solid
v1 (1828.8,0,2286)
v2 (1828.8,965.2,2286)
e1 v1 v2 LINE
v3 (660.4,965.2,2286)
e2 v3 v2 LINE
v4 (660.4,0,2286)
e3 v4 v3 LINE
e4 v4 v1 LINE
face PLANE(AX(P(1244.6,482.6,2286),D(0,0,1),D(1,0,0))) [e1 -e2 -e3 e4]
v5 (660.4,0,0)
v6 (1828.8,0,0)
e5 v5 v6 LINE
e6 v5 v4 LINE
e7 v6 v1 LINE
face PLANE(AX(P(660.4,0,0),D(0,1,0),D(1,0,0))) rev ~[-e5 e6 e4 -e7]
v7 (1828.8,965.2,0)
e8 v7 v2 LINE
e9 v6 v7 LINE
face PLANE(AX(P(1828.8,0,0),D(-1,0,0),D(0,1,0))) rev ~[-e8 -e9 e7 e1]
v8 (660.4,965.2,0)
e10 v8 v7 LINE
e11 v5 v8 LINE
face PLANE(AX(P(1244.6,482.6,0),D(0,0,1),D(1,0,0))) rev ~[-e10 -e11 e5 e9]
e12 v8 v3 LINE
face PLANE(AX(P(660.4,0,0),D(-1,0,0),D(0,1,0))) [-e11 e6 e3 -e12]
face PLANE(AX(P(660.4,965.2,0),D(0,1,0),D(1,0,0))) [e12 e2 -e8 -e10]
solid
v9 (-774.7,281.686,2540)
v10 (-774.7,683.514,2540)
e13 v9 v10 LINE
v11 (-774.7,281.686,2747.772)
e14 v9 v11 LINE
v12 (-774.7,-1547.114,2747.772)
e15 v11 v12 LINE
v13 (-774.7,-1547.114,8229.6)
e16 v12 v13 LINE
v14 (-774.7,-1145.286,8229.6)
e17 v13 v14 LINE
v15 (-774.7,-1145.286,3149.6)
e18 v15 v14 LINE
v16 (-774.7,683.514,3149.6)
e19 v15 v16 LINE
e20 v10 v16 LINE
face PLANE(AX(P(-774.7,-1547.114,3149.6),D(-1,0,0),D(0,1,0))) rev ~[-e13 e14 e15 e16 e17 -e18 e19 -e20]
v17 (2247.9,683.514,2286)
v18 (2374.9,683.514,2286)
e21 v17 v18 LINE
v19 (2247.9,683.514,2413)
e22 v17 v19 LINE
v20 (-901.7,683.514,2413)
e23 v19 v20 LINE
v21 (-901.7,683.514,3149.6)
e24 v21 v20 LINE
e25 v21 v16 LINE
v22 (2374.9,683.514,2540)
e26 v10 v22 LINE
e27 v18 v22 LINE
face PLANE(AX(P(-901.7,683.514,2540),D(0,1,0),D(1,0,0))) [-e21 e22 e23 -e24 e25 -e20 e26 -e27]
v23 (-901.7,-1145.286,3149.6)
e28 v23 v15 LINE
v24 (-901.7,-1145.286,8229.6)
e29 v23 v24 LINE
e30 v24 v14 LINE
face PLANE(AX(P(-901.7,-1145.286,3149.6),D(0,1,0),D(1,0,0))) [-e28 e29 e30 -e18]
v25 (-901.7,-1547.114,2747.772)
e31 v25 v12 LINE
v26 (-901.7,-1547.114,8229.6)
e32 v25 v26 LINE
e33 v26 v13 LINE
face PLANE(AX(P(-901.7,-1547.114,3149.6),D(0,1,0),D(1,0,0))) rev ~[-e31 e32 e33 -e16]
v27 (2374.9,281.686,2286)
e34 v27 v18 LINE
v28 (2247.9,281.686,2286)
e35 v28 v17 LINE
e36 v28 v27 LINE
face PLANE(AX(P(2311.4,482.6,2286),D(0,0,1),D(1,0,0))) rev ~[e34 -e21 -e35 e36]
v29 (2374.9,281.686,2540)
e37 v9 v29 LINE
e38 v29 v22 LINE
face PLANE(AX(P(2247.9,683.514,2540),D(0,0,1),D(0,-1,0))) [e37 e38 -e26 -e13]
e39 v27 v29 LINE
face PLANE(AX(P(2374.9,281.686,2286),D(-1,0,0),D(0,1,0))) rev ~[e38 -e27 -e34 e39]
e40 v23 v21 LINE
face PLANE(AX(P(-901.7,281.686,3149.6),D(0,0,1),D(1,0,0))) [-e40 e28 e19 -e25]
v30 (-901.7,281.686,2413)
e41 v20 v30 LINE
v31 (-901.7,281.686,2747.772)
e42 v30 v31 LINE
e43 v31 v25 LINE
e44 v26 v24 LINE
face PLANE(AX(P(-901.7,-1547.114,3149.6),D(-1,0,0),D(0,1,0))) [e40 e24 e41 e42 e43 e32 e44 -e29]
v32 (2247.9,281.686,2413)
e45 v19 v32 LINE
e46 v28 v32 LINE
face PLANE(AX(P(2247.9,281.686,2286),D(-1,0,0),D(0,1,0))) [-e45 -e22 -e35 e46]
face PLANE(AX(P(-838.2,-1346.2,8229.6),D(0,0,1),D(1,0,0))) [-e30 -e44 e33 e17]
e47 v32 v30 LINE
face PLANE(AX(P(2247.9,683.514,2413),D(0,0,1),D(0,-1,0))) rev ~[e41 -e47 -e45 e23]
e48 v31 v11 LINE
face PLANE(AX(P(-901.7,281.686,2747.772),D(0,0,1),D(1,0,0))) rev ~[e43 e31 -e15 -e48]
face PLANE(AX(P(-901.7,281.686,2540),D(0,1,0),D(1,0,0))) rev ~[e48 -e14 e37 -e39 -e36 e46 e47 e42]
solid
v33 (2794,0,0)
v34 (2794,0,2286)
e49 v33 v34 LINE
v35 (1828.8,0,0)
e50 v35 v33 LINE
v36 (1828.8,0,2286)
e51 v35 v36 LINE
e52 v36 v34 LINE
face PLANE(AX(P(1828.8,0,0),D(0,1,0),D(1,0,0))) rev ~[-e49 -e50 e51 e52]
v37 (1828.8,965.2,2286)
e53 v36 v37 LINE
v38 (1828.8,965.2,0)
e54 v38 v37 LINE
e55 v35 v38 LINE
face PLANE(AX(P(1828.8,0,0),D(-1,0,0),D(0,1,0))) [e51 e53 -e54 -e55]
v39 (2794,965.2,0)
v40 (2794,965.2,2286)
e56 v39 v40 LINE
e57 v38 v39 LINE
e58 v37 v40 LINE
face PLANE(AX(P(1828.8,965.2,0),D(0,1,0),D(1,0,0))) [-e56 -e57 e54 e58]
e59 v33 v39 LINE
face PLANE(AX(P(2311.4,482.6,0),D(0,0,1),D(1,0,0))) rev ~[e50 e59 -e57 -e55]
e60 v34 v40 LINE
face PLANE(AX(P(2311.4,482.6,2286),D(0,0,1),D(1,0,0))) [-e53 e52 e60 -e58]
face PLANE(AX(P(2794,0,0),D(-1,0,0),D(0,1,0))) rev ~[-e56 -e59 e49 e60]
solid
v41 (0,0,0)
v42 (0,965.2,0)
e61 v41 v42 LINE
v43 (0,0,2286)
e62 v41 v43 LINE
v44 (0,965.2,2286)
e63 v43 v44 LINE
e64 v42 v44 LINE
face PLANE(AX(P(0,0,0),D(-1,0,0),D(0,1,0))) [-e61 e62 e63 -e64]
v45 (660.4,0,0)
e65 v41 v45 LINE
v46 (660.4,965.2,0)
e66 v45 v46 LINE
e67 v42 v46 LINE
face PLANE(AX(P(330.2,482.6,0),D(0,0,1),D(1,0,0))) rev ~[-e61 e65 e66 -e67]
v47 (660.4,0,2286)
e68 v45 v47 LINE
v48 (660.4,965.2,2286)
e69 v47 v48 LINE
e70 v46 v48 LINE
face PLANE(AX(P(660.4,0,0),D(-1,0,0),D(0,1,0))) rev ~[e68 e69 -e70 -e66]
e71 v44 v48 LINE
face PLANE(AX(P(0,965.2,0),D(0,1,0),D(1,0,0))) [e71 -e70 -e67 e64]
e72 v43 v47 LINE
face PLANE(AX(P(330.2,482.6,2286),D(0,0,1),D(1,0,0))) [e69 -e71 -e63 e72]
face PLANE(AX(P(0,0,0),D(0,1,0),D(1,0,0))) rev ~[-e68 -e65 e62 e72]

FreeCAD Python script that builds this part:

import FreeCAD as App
import Part
import Sketcher

V = App.Vector
Q = App.Units.Quantity

doc = App.newDocument("Part")
body = doc.addObject("PartDesign::Body", "Body")

# Sketch on XY plane
sketch1 = body.newObject("Sketcher::SketchObject", "Sketch")
sketch1.AttachmentSupport = (doc.getObject("XY_Plane"), [""])
sketch1.MapMode = "FlatFace"
sketch1.addGeometry([
    Part.LineSegment(V(0, 965, 0), V(0, 0, 0)),
    Part.LineSegment(V(0, 0, 0), V(660, 0, 0)),
    Part.LineSegment(V(660, 0, 0), V(660, 965, 0)),
    Part.LineSegment(V(660, 965, 0), V(0, 965, 0)),
], False)
sketch1.addConstraint([
    Sketcher.Constraint("Coincident", 0, 2, 1, 1),
    Sketcher.Constraint("Coincident", 1, 2, 2, 1),
    Sketcher.Constraint("Coincident", 2, 2, 3, 1),
    Sketcher.Constraint("Coincident", 3, 2, 0, 1),
    Sketcher.Constraint("Vertical", 0),
    Sketcher.Constraint("Horizontal", 1),
    Sketcher.Constraint("Vertical", 2),
    Sketcher.Constraint("Horizontal", 3),
    Sketcher.Constraint("Coincident", 0, 2, -1, 1),
    Sketcher.Constraint("DistanceX", 1, 1, 1, 2, Q("26 in")),
    Sketcher.Constraint("DistanceY", 0, 2, 0, 1, Q("38 in")),
])
pad1 = body.newObject("PartDesign::Pad", "Pad")
pad1.Profile = sketch1
pad1.Length = Q("90 in")
body2 = doc.addObject("PartDesign::Body", "Body001")

# Sketch on XY plane
sketch2 = body2.newObject("Sketcher::SketchObject", "Sketch001")
sketch2.AttachmentSupport = (doc.getObject("XY_Plane001"), [""])
sketch2.MapMode = "FlatFace"
sketch2.addGeometry([
    Part.LineSegment(V(660, 965, 0), V(660, 0, 0)),
    Part.LineSegment(V(660, 0, 0), V(1829, 0, 0)),
    Part.LineSegment(V(1829, 0, 0), V(1829, 965, 0)),
    Part.LineSegment(V(1829, 965, 0), V(660, 965, 0)),
], False)
sketch2.addConstraint([
    Sketcher.Constraint("Coincident", 0, 2, 1, 1),
    Sketcher.Constraint("Coincident", 1, 2, 2, 1),
    Sketcher.Constraint("Coincident", 2, 2, 3, 1),
    Sketcher.Constraint("Coincident", 3, 2, 0, 1),
    Sketcher.Constraint("Vertical", 0),
    Sketcher.Constraint("Horizontal", 1),
    Sketcher.Constraint("Vertical", 2),
    Sketcher.Constraint("Horizontal", 3),
    Sketcher.Constraint("PointOnObject", 0, 2, -1),
    Sketcher.Constraint("DistanceX", 1, 1, 1, 2, Q("46 in")),
    Sketcher.Constraint("DistanceY", 0, 2, 0, 1, Q("38 in")),
    Sketcher.Constraint("DistanceX", -1, 1, 0, 2, Q("26 in")),
])
pad2 = body2.newObject("PartDesign::Pad", "Pad001")
pad2.Profile = sketch2
pad2.Length = Q("90 in")
body3 = doc.addObject("PartDesign::Body", "Body002")

# Sketch on XY plane
sketch3 = body3.newObject("Sketcher::SketchObject", "Sketch002")
sketch3.AttachmentSupport = (doc.getObject("XY_Plane002"), [""])
sketch3.MapMode = "FlatFace"
sketch3.addGeometry([
    Part.LineSegment(V(1829, 965, 0), V(1829, 0, 0)),
    Part.LineSegment(V(1829, 0, 0), V(2794, 0, 0)),
    Part.LineSegment(V(2794, 0, 0), V(2794, 965, 0)),
    Part.LineSegment(V(2794, 965, 0), V(1829, 965, 0)),
], False)
sketch3.addConstraint([
    Sketcher.Constraint("Coincident", 0, 2, 1, 1),
    Sketcher.Constraint("Coincident", 1, 2, 2, 1),
    Sketcher.Constraint("Coincident", 2, 2, 3, 1),
    Sketcher.Constraint("Coincident", 3, 2, 0, 1),
    Sketcher.Constraint("Vertical", 0),
    Sketcher.Constraint("Horizontal", 1),
    Sketcher.Constraint("Vertical", 2),
    Sketcher.Constraint("Horizontal", 3),
    Sketcher.Constraint("PointOnObject", 0, 2, -1),
    Sketcher.Constraint("Equal", 3, 0),
    Sketcher.Constraint("DistanceX", 1, 1, 1, 2, Q("38 in")),
    Sketcher.Constraint("DistanceX", -1, 1, 0, 2, Q("72 in")),
])
pad3 = body3.newObject("PartDesign::Pad", "Pad002")
pad3.Profile = sketch3
pad3.Length = Q("90 in")
body4 = doc.addObject("PartDesign::Body", "Body003")

# Sketch on XY plane
sketch4 = body4.newObject("Sketcher::SketchObject", "Sketch003")
sketch4.AttachmentSupport = (doc.getObject("XY_Plane003"), [""])
sketch4.MapMode = "FlatFace"
sketch4.AttachmentOffset = App.Placement(V(0, 0, 90 * 25.4), App.Rotation())
sketch4.addGeometry([
    Part.LineSegment(V(2248, 684, 0), V(2248, 282, 0)),
    Part.LineSegment(V(2248, 282, 0), V(2375, 282, 0)),
    Part.LineSegment(V(2375, 282, 0), V(2375, 684, 0)),
    Part.LineSegment(V(2375, 684, 0), V(2248, 684, 0)),
], False)
sketch4.addConstraint([
    Sketcher.Constraint("Coincident", 0, 2, 1, 1),
    Sketcher.Constraint("Coincident", 1, 2, 2, 1),
    Sketcher.Constraint("Coincident", 2, 2, 3, 1),
    Sketcher.Constraint("Coincident", 3, 2, 0, 1),
    Sketcher.Constraint("Vertical", 0),
    Sketcher.Constraint("Horizontal", 1),
    Sketcher.Constraint("Vertical", 2),
    Sketcher.Constraint("Horizontal", 3),
    Sketcher.Constraint("DistanceX", 1, 1, 1, 2, Q("5 in")),
    Sketcher.Constraint("DistanceY", 0, 2, 0, 1, Q("15.82 in")),
    Sketcher.Constraint("DistanceX", -1, 1, 0, 2, Q("88.5 in")),
    Sketcher.Constraint("DistanceY", -1, 1, 0, 2, Q("11.09 in")),
])
pad4 = body4.newObject("PartDesign::Pad", "Pad003")
pad4.Profile = sketch4
pad4.Length = Q("10 in")

# Sketch on YZ plane
sketch5 = body4.newObject("Sketcher::SketchObject", "Sketch004")
sketch5.AttachmentSupport = (doc.getObject("YZ_Plane003"), [""])
sketch5.MapMode = "FlatFace"
sketch5.AttachmentOffset = App.Placement(V(0, 0, 88.5 * 25.4), App.Rotation())
sketch5.addGeometry([
    Part.LineSegment(V(684, 2540, 0), V(684, 2413, 0)),
    Part.LineSegment(V(684, 2413, 0), V(282, 2413, 0)),
    Part.LineSegment(V(282, 2413, 0), V(282, 2540, 0)),
    Part.LineSegment(V(282, 2540, 0), V(684, 2540, 0)),
], False)
sketch5.addConstraint([
    Sketcher.Constraint("Coincident", 0, 2, 1, 1),
    Sketcher.Constraint("Coincident", 1, 2, 2, 1),
    Sketcher.Constraint("Coincident", 2, 2, 3, 1),
    Sketcher.Constraint("Coincident", 3, 2, 0, 1),
    Sketcher.Constraint("Vertical", 0),
    Sketcher.Constraint("Horizontal", 1),
    Sketcher.Constraint("Vertical", 2),
    Sketcher.Constraint("Horizontal", 3),
    Sketcher.Constraint("DistanceY", 0, 2, 0, 1, Q("5 in")),
    Sketcher.Constraint("DistanceY", -1, 1, 0, 2, Q("95 in")),
    Sketcher.Constraint("DistanceX", 1, 2, 1, 1, Q("15.82 in")),
    Sketcher.Constraint("DistanceX", -1, 1, 0, 2, Q("26.91 in")),
])
pad5 = body4.newObject("PartDesign::Pad", "Pad004")
pad5.Profile = sketch5
pad5.Length = Q("124 in")
pad5.Reversed = True

# Sketch on XY plane
sketch6 = body4.newObject("Sketcher::SketchObject", "Sketch005")
sketch6.AttachmentSupport = (doc.getObject("XY_Plane003"), [""])
sketch6.MapMode = "FlatFace"
sketch6.AttachmentOffset = App.Placement(V(0, 0, 100 * 25.4), App.Rotation())
sketch6.addGeometry([
    Part.LineSegment(V(-902, 684, 0), V(-902, 282, 0)),
    Part.LineSegment(V(-902, 282, 0), V(-775, 282, 0)),
    Part.LineSegment(V(-775, 282, 0), V(-775, 684, 0)),
    Part.LineSegment(V(-775, 684, 0), V(-902, 684, 0)),
], False)
sketch6.addConstraint([
    Sketcher.Constraint("Coincident", 0, 2, 1, 1),
    Sketcher.Constraint("Coincident", 1, 2, 2, 1),
    Sketcher.Constraint("Coincident", 2, 2, 3, 1),
    Sketcher.Constraint("Coincident", 3, 2, 0, 1),
    Sketcher.Constraint("Vertical", 0),
    Sketcher.Constraint("Horizontal", 1),
    Sketcher.Constraint("Vertical", 2),
    Sketcher.Constraint("Horizontal", 3),
    Sketcher.Constraint("DistanceX", 1, 1, 1, 2, Q("5 in")),
    Sketcher.Constraint("DistanceY", 0, 2, 0, 1, Q("15.82 in")),
    Sketcher.Constraint("DistanceX", 0, 2, -1, 1, Q("35.5 in")),
    Sketcher.Constraint("DistanceY", -1, 1, 0, 2, Q("11.09 in")),
])
pad6 = body4.newObject("PartDesign::Pad", "Pad005")
pad6.Profile = sketch6
pad6.Length = Q("24 in")

# Sketch on XZ plane
sketch7 = body4.newObject("Sketcher::SketchObject", "Sketch006")
sketch7.AttachmentSupport = (doc.getObject("XZ_Plane003"), [""])
sketch7.MapMode = "FlatFace"
sketch7.AttachmentOffset = App.Placement(V(0, 0, -11.09 * 25.4), App.Rotation())
sketch7.addGeometry([
    Part.LineSegment(V(-902, 3150, 0), V(-902, 2748, 0)),
    Part.LineSegment(V(-902, 2748, 0), V(-775, 2748, 0)),
    Part.LineSegment(V(-775, 2748, 0), V(-775, 3150, 0)),
    Part.LineSegment(V(-775, 3150, 0), V(-902, 3150, 0)),
], False)
sketch7.addConstraint([
    Sketcher.Constraint("Coincident", 0, 2, 1, 1),
    Sketcher.Constraint("Coincident", 1, 2, 2, 1),
    Sketcher.Constraint("Coincident", 2, 2, 3, 1),
    Sketcher.Constraint("Coincident", 3, 2, 0, 1),
    Sketcher.Constraint("Vertical", 0),
    Sketcher.Constraint("Horizontal", 1),
    Sketcher.Constraint("Vertical", 2),
    Sketcher.Constraint("Horizontal", 3),
    Sketcher.Constraint("DistanceX", 1, 1, 1, 2, Q("5 in")),
    Sketcher.Constraint("DistanceY", -1, 1, 2, 2, Q("124 in")),
    Sketcher.Constraint("DistanceY", 0, 2, 0, 1, Q("15.82 in")),
    Sketcher.Constraint("DistanceX", 0, 2, -1, 1, Q("35.5 in")),
])
pad7 = body4.newObject("PartDesign::Pad", "Pad006")
pad7.Profile = sketch7
pad7.Length = Q("72 in")

# Sketch on XY plane
sketch8 = body4.newObject("Sketcher::SketchObject", "Sketch007")
sketch8.AttachmentSupport = (doc.getObject("XY_Plane003"), [""])
sketch8.MapMode = "FlatFace"
sketch8.AttachmentOffset = App.Placement(V(0, 0, 124 * 25.4), App.Rotation())
sketch8.addGeometry([
    Part.LineSegment(V(-902, -1145, 0), V(-902, -1547, 0)),
    Part.LineSegment(V(-902, -1547, 0), V(-775, -1547, 0)),
    Part.LineSegment(V(-775, -1547, 0), V(-775, -1145, 0)),
    Part.LineSegment(V(-775, -1145, 0), V(-902, -1145, 0)),
], False)
sketch8.addConstraint([
    Sketcher.Constraint("Coincident", 0, 2, 1, 1),
    Sketcher.Constraint("Coincident", 1, 2, 2, 1),
    Sketcher.Constraint("Coincident", 2, 2, 3, 1),
    Sketcher.Constraint("Coincident", 3, 2, 0, 1),
    Sketcher.Constraint("Vertical", 0),
    Sketcher.Constraint("Horizontal", 1),
    Sketcher.Constraint("Vertical", 2),
    Sketcher.Constraint("Horizontal", 3),
    Sketcher.Constraint("DistanceX", 1, 1, 1, 2, Q("5 in")),
    Sketcher.Constraint("DistanceY", 0, 2, 0, 1, Q("15.82 in")),
    Sketcher.Constraint("DistanceX", 0, 2, -1, 1, Q("35.5 in")),
    Sketcher.Constraint("DistanceY", 0, 2, -1, 1, Q("60.91 in")),
])
pad8 = body4.newObject("PartDesign::Pad", "Pad007")
pad8.Profile = sketch8
pad8.Length = Q("200 in")

doc.recompute()
